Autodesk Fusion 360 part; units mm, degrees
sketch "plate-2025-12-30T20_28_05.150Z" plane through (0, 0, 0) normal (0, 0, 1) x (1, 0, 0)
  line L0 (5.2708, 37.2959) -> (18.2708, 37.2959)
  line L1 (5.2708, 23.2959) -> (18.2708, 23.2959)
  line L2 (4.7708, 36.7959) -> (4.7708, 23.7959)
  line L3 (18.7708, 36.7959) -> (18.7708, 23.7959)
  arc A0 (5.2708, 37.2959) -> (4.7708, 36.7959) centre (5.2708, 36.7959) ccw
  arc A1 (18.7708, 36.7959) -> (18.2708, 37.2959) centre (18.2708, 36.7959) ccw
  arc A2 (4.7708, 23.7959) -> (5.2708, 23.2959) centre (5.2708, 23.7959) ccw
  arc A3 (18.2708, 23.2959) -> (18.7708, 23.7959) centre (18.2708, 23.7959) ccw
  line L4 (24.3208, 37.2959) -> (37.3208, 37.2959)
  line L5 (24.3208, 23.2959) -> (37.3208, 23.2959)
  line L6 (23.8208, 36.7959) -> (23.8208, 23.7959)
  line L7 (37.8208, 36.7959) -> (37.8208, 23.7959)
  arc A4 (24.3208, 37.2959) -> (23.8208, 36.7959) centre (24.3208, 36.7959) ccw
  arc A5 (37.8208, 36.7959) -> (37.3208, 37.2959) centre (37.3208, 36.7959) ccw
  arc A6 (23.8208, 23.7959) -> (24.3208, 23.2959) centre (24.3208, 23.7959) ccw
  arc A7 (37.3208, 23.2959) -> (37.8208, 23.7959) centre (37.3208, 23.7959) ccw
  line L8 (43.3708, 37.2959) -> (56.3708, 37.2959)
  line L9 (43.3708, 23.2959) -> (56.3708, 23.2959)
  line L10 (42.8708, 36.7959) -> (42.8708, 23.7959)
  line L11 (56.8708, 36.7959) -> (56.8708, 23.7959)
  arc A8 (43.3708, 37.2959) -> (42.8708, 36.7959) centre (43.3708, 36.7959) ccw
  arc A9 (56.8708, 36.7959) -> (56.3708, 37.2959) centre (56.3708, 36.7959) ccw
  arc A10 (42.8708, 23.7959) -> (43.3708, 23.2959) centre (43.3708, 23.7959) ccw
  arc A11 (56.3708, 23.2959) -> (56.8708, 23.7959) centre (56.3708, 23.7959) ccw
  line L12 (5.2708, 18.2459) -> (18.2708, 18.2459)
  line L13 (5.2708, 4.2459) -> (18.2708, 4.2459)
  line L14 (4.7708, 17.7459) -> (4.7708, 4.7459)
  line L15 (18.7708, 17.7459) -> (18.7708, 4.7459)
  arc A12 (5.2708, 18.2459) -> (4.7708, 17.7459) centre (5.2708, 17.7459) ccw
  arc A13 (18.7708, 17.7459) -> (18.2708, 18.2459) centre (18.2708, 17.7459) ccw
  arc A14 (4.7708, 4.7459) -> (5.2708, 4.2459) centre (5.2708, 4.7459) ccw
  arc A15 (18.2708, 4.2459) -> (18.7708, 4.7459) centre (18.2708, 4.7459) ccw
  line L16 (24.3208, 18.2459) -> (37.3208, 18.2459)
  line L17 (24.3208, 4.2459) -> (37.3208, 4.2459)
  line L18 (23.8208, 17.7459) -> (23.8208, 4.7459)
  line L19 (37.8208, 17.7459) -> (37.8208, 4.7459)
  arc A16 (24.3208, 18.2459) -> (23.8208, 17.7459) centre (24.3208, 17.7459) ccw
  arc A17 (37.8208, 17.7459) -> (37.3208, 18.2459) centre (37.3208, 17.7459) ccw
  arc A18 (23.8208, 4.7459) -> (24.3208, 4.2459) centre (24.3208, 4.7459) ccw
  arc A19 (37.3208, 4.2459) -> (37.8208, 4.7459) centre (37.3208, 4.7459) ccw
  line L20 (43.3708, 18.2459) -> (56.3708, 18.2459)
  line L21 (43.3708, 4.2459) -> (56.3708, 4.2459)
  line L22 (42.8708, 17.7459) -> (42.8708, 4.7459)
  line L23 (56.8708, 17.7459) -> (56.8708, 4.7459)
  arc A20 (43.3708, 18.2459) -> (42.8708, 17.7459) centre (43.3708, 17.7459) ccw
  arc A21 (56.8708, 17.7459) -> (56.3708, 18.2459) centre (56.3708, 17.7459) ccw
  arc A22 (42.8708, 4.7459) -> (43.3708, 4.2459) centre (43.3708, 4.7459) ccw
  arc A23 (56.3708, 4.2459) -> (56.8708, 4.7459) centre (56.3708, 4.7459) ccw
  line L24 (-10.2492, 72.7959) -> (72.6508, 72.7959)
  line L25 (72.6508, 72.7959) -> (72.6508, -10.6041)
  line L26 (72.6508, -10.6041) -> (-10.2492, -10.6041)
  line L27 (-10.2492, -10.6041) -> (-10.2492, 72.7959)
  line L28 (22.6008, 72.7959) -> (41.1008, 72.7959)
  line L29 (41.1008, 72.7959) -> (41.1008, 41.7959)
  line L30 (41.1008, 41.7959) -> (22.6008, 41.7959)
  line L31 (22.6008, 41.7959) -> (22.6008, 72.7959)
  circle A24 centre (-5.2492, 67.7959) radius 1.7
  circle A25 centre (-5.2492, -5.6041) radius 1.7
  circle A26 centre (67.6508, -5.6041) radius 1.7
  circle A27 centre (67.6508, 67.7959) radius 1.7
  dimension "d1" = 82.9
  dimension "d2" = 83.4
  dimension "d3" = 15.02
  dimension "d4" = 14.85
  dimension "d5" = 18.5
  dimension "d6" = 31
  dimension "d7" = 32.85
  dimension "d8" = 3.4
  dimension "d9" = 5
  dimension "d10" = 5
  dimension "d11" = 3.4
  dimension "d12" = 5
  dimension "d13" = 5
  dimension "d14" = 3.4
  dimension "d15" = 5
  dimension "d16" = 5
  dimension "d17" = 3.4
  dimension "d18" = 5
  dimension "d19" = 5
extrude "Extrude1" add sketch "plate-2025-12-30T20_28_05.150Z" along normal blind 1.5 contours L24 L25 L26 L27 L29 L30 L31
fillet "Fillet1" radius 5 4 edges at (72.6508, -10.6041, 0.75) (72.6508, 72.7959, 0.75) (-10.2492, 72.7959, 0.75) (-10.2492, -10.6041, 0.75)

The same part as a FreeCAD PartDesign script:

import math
import FreeCAD as App
import Part
import Sketcher

V = App.Vector
Q = App.Units.Quantity


def edges_at(feature, points):
    """Names of the edges that pass closest to the given points."""
    edges = feature.Shape.Edges
    near = lambda p: min(range(len(edges)), key=lambda i: edges[i].distToShape(Part.Vertex(*p))[0])
    return sorted({f"Edge{near(p) + 1}" for p in points})

doc = App.newDocument("Part")
body = doc.addObject("PartDesign::Body", "Body")

# Sketch on XY plane
sketch1 = body.newObject("Sketcher::SketchObject", "Sketch")
sketch1.AttachmentSupport = (doc.getObject("XY_Plane"), [""])
sketch1.MapMode = "FlatFace"
sketch1.addGeometry(Part.LineSegment(V(22.6, 72.8, 0), V(-10.2, 72.8, 0)), False)
sketch1.addGeometry(Part.LineSegment(V(-10.2, 72.8, 0), V(-10.2, -10.6, 0)), False)
sketch1.addGeometry(Part.LineSegment(V(-10.2, -10.6, 0), V(72.7, -10.6, 0)), False)
sketch1.addGeometry(Part.LineSegment(V(72.7, -10.6, 0), V(72.7, 72.8, 0)), False)
sketch1.addGeometry(Part.LineSegment(V(72.7, 72.8, 0), V(41.1, 72.8, 0)), False)
sketch1.addGeometry(Part.LineSegment(V(41.1, 72.8, 0), V(41.1, 41.8, 0)), False)
sketch1.addGeometry(Part.LineSegment(V(41.1, 41.8, 0), V(22.6, 41.8, 0)), False)
sketch1.addGeometry(Part.LineSegment(V(22.6, 41.8, 0), V(22.6, 72.8, 0)), False)
sketch1.addGeometry(Part.Circle(V(-5.2, -5.6, 0), V(0, 0, 1), 1.7), False)
sketch1.addGeometry(Part.ArcOfCircle(Part.Circle(V(5.3, 17.7, 0), V(0, 0, 1), 0.5), math.radians(90), math.radians(180)), False)
sketch1.addGeometry(Part.LineSegment(V(5.3, 18.2, 0), V(18.3, 18.2, 0)), False)
sketch1.addGeometry(Part.ArcOfCircle(Part.Circle(V(18.3, 17.7, 0), V(0, 0, 1), 0.5), math.radians(0), math.radians(90)), False)
sketch1.addGeometry(Part.LineSegment(V(18.8, 17.7, 0), V(18.8, 4.7, 0)), False)
sketch1.addGeometry(Part.ArcOfCircle(Part.Circle(V(18.3, 4.7, 0), V(0, 0, 1), 0.5), math.radians(-90), math.radians(0)), False)
sketch1.addGeometry(Part.LineSegment(V(18.3, 4.2, 0), V(5.3, 4.2, 0)), False)
sketch1.addGeometry(Part.ArcOfCircle(Part.Circle(V(5.3, 4.7, 0), V(0, 0, 1), 0.5), math.radians(180), math.radians(270)), False)
sketch1.addGeometry(Part.LineSegment(V(4.8, 4.7, 0), V(4.8, 17.7, 0)), False)
sketch1.addGeometry(Part.ArcOfCircle(Part.Circle(V(24.3, 17.7, 0), V(0, 0, 1), 0.5), math.radians(90), math.radians(180)), False)
sketch1.addGeometry(Part.LineSegment(V(24.3, 18.2, 0), V(37.3, 18.2, 0)), False)
sketch1.addGeometry(Part.ArcOfCircle(Part.Circle(V(37.3, 17.7, 0), V(0, 0, 1), 0.5), math.radians(0), math.radians(90)), False)
sketch1.addGeometry(Part.LineSegment(V(37.8, 17.7, 0), V(37.8, 4.7, 0)), False)
sketch1.addGeometry(Part.ArcOfCircle(Part.Circle(V(37.3, 4.7, 0), V(0, 0, 1), 0.5), math.radians(-90), math.radians(0)), False)
sketch1.addGeometry(Part.LineSegment(V(37.3, 4.2, 0), V(24.3, 4.2, 0)), False)
sketch1.addGeometry(Part.ArcOfCircle(Part.Circle(V(24.3, 4.7, 0), V(0, 0, 1), 0.5), math.radians(180), math.radians(270)), False)
sketch1.addGeometry(Part.LineSegment(V(23.8, 4.7, 0), V(23.8, 17.7, 0)), False)
sketch1.addGeometry(Part.ArcOfCircle(Part.Circle(V(5.3, 36.8, 0), V(0, 0, 1), 0.5), math.radians(90), math.radians(180)), False)
sketch1.addGeometry(Part.LineSegment(V(5.3, 37.3, 0), V(18.3, 37.3, 0)), False)
sketch1.addGeometry(Part.ArcOfCircle(Part.Circle(V(18.3, 36.8, 0), V(0, 0, 1), 0.5), math.radians(0), math.radians(90)), False)
sketch1.addGeometry(Part.LineSegment(V(18.8, 36.8, 0), V(18.8, 23.8, 0)), False)
sketch1.addGeometry(Part.ArcOfCircle(Part.Circle(V(18.3, 23.8, 0), V(0, 0, 1), 0.5), math.radians(-90), math.radians(0)), False)
sketch1.addGeometry(Part.LineSegment(V(18.3, 23.3, 0), V(5.3, 23.3, 0)), False)
sketch1.addGeometry(Part.ArcOfCircle(Part.Circle(V(5.3, 23.8, 0), V(0, 0, 1), 0.5), math.radians(180), math.radians(270)), False)
sketch1.addGeometry(Part.LineSegment(V(4.8, 23.8, 0), V(4.8, 36.8, 0)), False)
sketch1.addGeometry(Part.ArcOfCircle(Part.Circle(V(24.3, 36.8, 0), V(0, 0, 1), 0.5), math.radians(90), math.radians(180)), False)
sketch1.addGeometry(Part.LineSegment(V(24.3, 37.3, 0), V(37.3, 37.3, 0)), False)
sketch1.addGeometry(Part.ArcOfCircle(Part.Circle(V(37.3, 36.8, 0), V(0, 0, 1), 0.5), math.radians(0), math.radians(90)), False)
sketch1.addGeometry(Part.LineSegment(V(37.8, 36.8, 0), V(37.8, 23.8, 0)), False)
sketch1.addGeometry(Part.ArcOfCircle(Part.Circle(V(37.3, 23.8, 0), V(0, 0, 1), 0.5), math.radians(-90), math.radians(0)), False)
sketch1.addGeometry(Part.LineSegment(V(37.3, 23.3, 0), V(24.3, 23.3, 0)), False)
sketch1.addGeometry(Part.ArcOfCircle(Part.Circle(V(24.3, 23.8, 0), V(0, 0, 1), 0.5), math.radians(180), math.radians(270)), False)
sketch1.addGeometry(Part.LineSegment(V(23.8, 23.8, 0), V(23.8, 36.8, 0)), False)
sketch1.addGeometry(Part.Circle(V(67.7, -5.6, 0), V(0, 0, 1), 1.7), False)
sketch1.addGeometry(Part.ArcOfCircle(Part.Circle(V(43.4, 17.7, 0), V(0, 0, 1), 0.5), math.radians(90), math.radians(180)), False)
sketch1.addGeometry(Part.LineSegment(V(43.4, 18.2, 0), V(56.4, 18.2, 0)), False)
sketch1.addGeometry(Part.ArcOfCircle(Part.Circle(V(56.4, 17.7, 0), V(0, 0, 1), 0.5), math.radians(0), math.radians(90)), False)
sketch1.addGeometry(Part.LineSegment(V(56.9, 17.7, 0), V(56.9, 4.7, 0)), False)
sketch1.addGeometry(Part.ArcOfCircle(Part.Circle(V(56.4, 4.7, 0), V(0, 0, 1), 0.5), math.radians(-90), math.radians(0)), False)
sketch1.addGeometry(Part.LineSegment(V(56.4, 4.2, 0), V(43.4, 4.2, 0)), False)
sketch1.addGeometry(Part.ArcOfCircle(Part.Circle(V(43.4, 4.7, 0), V(0, 0, 1), 0.5), math.radians(180), math.radians(270)), False)
sketch1.addGeometry(Part.LineSegment(V(42.9, 4.7, 0), V(42.9, 17.7, 0)), False)
sketch1.addGeometry(Part.ArcOfCircle(Part.Circle(V(43.4, 36.8, 0), V(0, 0, 1), 0.5), math.radians(90), math.radians(180)), False)
sketch1.addGeometry(Part.LineSegment(V(43.4, 37.3, 0), V(56.4, 37.3, 0)), False)
sketch1.addGeometry(Part.ArcOfCircle(Part.Circle(V(56.4, 36.8, 0), V(0, 0, 1), 0.5), math.radians(0), math.radians(90)), False)
sketch1.addGeometry(Part.LineSegment(V(56.9, 36.8, 0), V(56.9, 23.8, 0)), False)
sketch1.addGeometry(Part.ArcOfCircle(Part.Circle(V(56.4, 23.8, 0), V(0, 0, 1), 0.5), math.radians(-90), math.radians(0)), False)
sketch1.addGeometry(Part.LineSegment(V(56.4, 23.3, 0), V(43.4, 23.3, 0)), False)
sketch1.addGeometry(Part.ArcOfCircle(Part.Circle(V(43.4, 23.8, 0), V(0, 0, 1), 0.5), math.radians(180), math.radians(270)), False)
sketch1.addGeometry(Part.LineSegment(V(42.9, 23.8, 0), V(42.9, 36.8, 0)), False)
sketch1.addGeometry(Part.Circle(V(-5.2, 67.8, 0), V(0, 0, 1), 1.7), False)
sketch1.addGeometry(Part.Circle(V(67.7, 67.8, 0), V(0, 0, 1), 1.7), False)
sketch1.addConstraint(Sketcher.Constraint("Coincident", 0, 2, 1, 1))
sketch1.addConstraint(Sketcher.Constraint("Coincident", 1, 2, 2, 1))
sketch1.addConstraint(Sketcher.Constraint("Coincident", 2, 2, 3, 1))
sketch1.addConstraint(Sketcher.Constraint("Coincident", 3, 2, 4, 1))
sketch1.addConstraint(Sketcher.Constraint("Coincident", 4, 2, 5, 1))
sketch1.addConstraint(Sketcher.Constraint("Coincident", 5, 2, 6, 1))
sketch1.addConstraint(Sketcher.Constraint("Coincident", 6, 2, 7, 1))
sketch1.addConstraint(Sketcher.Constraint("Coincident", 7, 2, 0, 1))
sketch1.addConstraint(Sketcher.Constraint("Tangent", 9, 1, 10, 1))
sketch1.addConstraint(Sketcher.Constraint("Tangent", 10, 2, 11, 2))
sketch1.addConstraint(Sketcher.Constraint("Tangent", 11, 1, 12, 1))
sketch1.addConstraint(Sketcher.Constraint("Tangent", 12, 2, 13, 2))
sketch1.addConstraint(Sketcher.Constraint("Tangent", 13, 1, 14, 1))
sketch1.addConstraint(Sketcher.Constraint("Tangent", 14, 2, 15, 2))
sketch1.addConstraint(Sketcher.Constraint("Tangent", 15, 1, 16, 1))
sketch1.addConstraint(Sketcher.Constraint("Tangent", 16, 2, 9, 2))
sketch1.addConstraint(Sketcher.Constraint("Tangent", 17, 1, 18, 1))
sketch1.addConstraint(Sketcher.Constraint("Tangent", 18, 2, 19, 2))
sketch1.addConstraint(Sketcher.Constraint("Tangent", 19, 1, 20, 1))
sketch1.addConstraint(Sketcher.Constraint("Tangent", 20, 2, 21, 2))
sketch1.addConstraint(Sketcher.Constraint("Tangent", 21, 1, 22, 1))
sketch1.addConstraint(Sketcher.Constraint("Tangent", 22, 2, 23, 2))
sketch1.addConstraint(Sketcher.Constraint("Tangent", 23, 1, 24, 1))
sketch1.addConstraint(Sketcher.Constraint("Tangent", 24, 2, 17, 2))
sketch1.addConstraint(Sketcher.Constraint("Tangent", 25, 1, 26, 1))
sketch1.addConstraint(Sketcher.Constraint("Tangent", 26, 2, 27, 2))
sketch1.addConstraint(Sketcher.Constraint("Tangent", 27, 1, 28, 1))
sketch1.addConstraint(Sketcher.Constraint("Tangent", 28, 2, 29, 2))
sketch1.addConstraint(Sketcher.Constraint("Tangent", 29, 1, 30, 1))
sketch1.addConstraint(Sketcher.Constraint("Tangent", 30, 2, 31, 2))
sketch1.addConstraint(Sketcher.Constraint("Tangent", 31, 1, 32, 1))
sketch1.addConstraint(Sketcher.Constraint("Tangent", 32, 2, 25, 2))
sketch1.addConstraint(Sketcher.Constraint("Tangent", 33, 1, 34, 1))
sketch1.addConstraint(Sketcher.Constraint("Tangent", 34, 2, 35, 2))
sketch1.addConstraint(Sketcher.Constraint("Tangent", 35, 1, 36, 1))
sketch1.addConstraint(Sketcher.Constraint("Tangent", 36, 2, 37, 2))
sketch1.addConstraint(Sketcher.Constraint("Tangent", 37, 1, 38, 1))
sketch1.addConstraint(Sketcher.Constraint("Tangent", 38, 2, 39, 2))
sketch1.addConstraint(Sketcher.Constraint("Tangent", 39, 1, 40, 1))
sketch1.addConstraint(Sketcher.Constraint("Tangent", 40, 2, 33, 2))
sketch1.addConstraint(Sketcher.Constraint("Tangent", 42, 1, 43, 1))
sketch1.addConstraint(Sketcher.Constraint("Tangent", 43, 2, 44, 2))
sketch1.addConstraint(Sketcher.Constraint("Tangent", 44, 1, 45, 1))
sketch1.addConstraint(Sketcher.Constraint("Tangent", 45, 2, 46, 2))
sketch1.addConstraint(Sketcher.Constraint("Tangent", 46, 1, 47, 1))
sketch1.addConstraint(Sketcher.Constraint("Tangent", 47, 2, 48, 2))
sketch1.addConstraint(Sketcher.Constraint("Tangent", 48, 1, 49, 1))
sketch1.addConstraint(Sketcher.Constraint("Tangent", 49, 2, 42, 2))
sketch1.addConstraint(Sketcher.Constraint("Tangent", 50, 1, 51, 1))
sketch1.addConstraint(Sketcher.Constraint("Tangent", 51, 2, 52, 2))
sketch1.addConstraint(Sketcher.Constraint("Tangent", 52, 1, 53, 1))
sketch1.addConstraint(Sketcher.Constraint("Tangent", 53, 2, 54, 2))
sketch1.addConstraint(Sketcher.Constraint("Tangent", 54, 1, 55, 1))
sketch1.addConstraint(Sketcher.Constraint("Tangent", 55, 2, 56, 2))
sketch1.addConstraint(Sketcher.Constraint("Tangent", 56, 1, 57, 1))
sketch1.addConstraint(Sketcher.Constraint("Tangent", 57, 2, 50, 2))
sketch1.addConstraint(Sketcher.Constraint("Horizontal", 0))
sketch1.addConstraint(Sketcher.Constraint("Vertical", 1))
sketch1.addConstraint(Sketcher.Constraint("Horizontal", 2))
sketch1.addConstraint(Sketcher.Constraint("Vertical", 3))
sketch1.addConstraint(Sketcher.Constraint("Horizontal", 4))
sketch1.addConstraint(Sketcher.Constraint("Vertical", 5))
sketch1.addConstraint(Sketcher.Constraint("Horizontal", 6))
sketch1.addConstraint(Sketcher.Constraint("Vertical", 7))
sketch1.addConstraint(Sketcher.Constraint("Horizontal", 10))
sketch1.addConstraint(Sketcher.Constraint("Vertical", 12))
sketch1.addConstraint(Sketcher.Constraint("Horizontal", 14))
sketch1.addConstraint(Sketcher.Constraint("Vertical", 16))
sketch1.addConstraint(Sketcher.Constraint("Horizontal", 18))
sketch1.addConstraint(Sketcher.Constraint("Vertical", 20))
sketch1.addConstraint(Sketcher.Constraint("Horizontal", 22))
sketch1.addConstraint(Sketcher.Constraint("Vertical", 24))
sketch1.addConstraint(Sketcher.Constraint("Horizontal", 26))
sketch1.addConstraint(Sketcher.Constraint("Vertical", 28))
sketch1.addConstraint(Sketcher.Constraint("Horizontal", 30))
sketch1.addConstraint(Sketcher.Constraint("Vertical", 32))
sketch1.addConstraint(Sketcher.Constraint("Horizontal", 34))
sketch1.addConstraint(Sketcher.Constraint("Vertical", 36))
sketch1.addConstraint(Sketcher.Constraint("Horizontal", 38))
sketch1.addConstraint(Sketcher.Constraint("Vertical", 40))
sketch1.addConstraint(Sketcher.Constraint("Horizontal", 43))
sketch1.addConstraint(Sketcher.Constraint("Vertical", 45))
sketch1.addConstraint(Sketcher.Constraint("Horizontal", 47))
sketch1.addConstraint(Sketcher.Constraint("Vertical", 49))
sketch1.addConstraint(Sketcher.Constraint("Horizontal", 51))
sketch1.addConstraint(Sketcher.Constraint("Vertical", 53))
sketch1.addConstraint(Sketcher.Constraint("Horizontal", 55))
sketch1.addConstraint(Sketcher.Constraint("Vertical", 57))
sketch1.addConstraint(Sketcher.Constraint("Equal", 9, 11))
sketch1.addConstraint(Sketcher.Constraint("Equal", 11, 13))
sketch1.addConstraint(Sketcher.Constraint("Equal", 13, 15))
sketch1.addConstraint(Sketcher.Constraint("Equal", 15, 17))
sketch1.addConstraint(Sketcher.Constraint("Equal", 17, 19))
sketch1.addConstraint(Sketcher.Constraint("Equal", 19, 21))
sketch1.addConstraint(Sketcher.Constraint("Equal", 21, 23))
sketch1.addConstraint(Sketcher.Constraint("Equal", 23, 25))
sketch1.addConstraint(Sketcher.Constraint("Equal", 25, 27))
sketch1.addConstraint(Sketcher.Constraint("Equal", 27, 29))
sketch1.addConstraint(Sketcher.Constraint("Equal", 29, 31))
sketch1.addConstraint(Sketcher.Constraint("Equal", 31, 33))
sketch1.addConstraint(Sketcher.Constraint("Equal", 33, 35))
sketch1.addConstraint(Sketcher.Constraint("Equal", 35, 37))
sketch1.addConstraint(Sketcher.Constraint("Equal", 37, 39))
sketch1.addConstraint(Sketcher.Constraint("Equal", 8, 41))
sketch1.addConstraint(Sketcher.Constraint("Equal", 39, 42))
sketch1.addConstraint(Sketcher.Constraint("Equal", 42, 44))
sketch1.addConstraint(Sketcher.Constraint("Equal", 44, 46))
sketch1.addConstraint(Sketcher.Constraint("Equal", 46, 48))
sketch1.addConstraint(Sketcher.Constraint("Equal", 48, 50))
sketch1.addConstraint(Sketcher.Constraint("Equal", 50, 52))
sketch1.addConstraint(Sketcher.Constraint("Equal", 52, 54))
sketch1.addConstraint(Sketcher.Constraint("Equal", 54, 56))
sketch1.addConstraint(Sketcher.Constraint("Equal", 41, 58))
sketch1.addConstraint(Sketcher.Constraint("Equal", 58, 59))
sketch1.addConstraint(Sketcher.Constraint("Horizontal", 11, 3, 17, 3))
sketch1.addConstraint(Sketcher.Constraint("Horizontal", 15, 3, 21, 3))
sketch1.addConstraint(Sketcher.Constraint("Horizontal", 27, 3, 33, 3))
sketch1.addConstraint(Sketcher.Constraint("Horizontal", 31, 3, 37, 3))
sketch1.addConstraint(Sketcher.Constraint("Horizontal", 8, 3, 41, 3))
sketch1.addConstraint(Sketcher.Constraint("Horizontal", 19, 3, 42, 3))
sketch1.addConstraint(Sketcher.Constraint("Horizontal", 23, 3, 46, 3))
sketch1.addConstraint(Sketcher.Constraint("Horizontal", 35, 3, 50, 3))
sketch1.addConstraint(Sketcher.Constraint("Horizontal", 39, 3, 54, 3))
sketch1.addConstraint(Sketcher.Constraint("Horizontal", 58, 3, 59, 3))
sketch1.addConstraint(Sketcher.Constraint("Horizontal", 0, 2, 3, 2))
sketch1.addConstraint(Sketcher.Constraint("Vertical", 15, 3, 25, 3))
sketch1.addConstraint(Sketcher.Constraint("Vertical", 13, 3, 27, 3))
sketch1.addConstraint(Sketcher.Constraint("Vertical", 23, 3, 33, 3))
sketch1.addConstraint(Sketcher.Constraint("Vertical", 21, 3, 35, 3))
sketch1.addConstraint(Sketcher.Constraint("Vertical", 48, 3, 50, 3))
sketch1.addConstraint(Sketcher.Constraint("Vertical", 46, 3, 52, 3))
sketch1.addConstraint(Sketcher.Constraint("Vertical", 8, 3, 58, 3))
sketch1.addConstraint(Sketcher.Constraint("Vertical", 41, 3, 59, 3))
sketch1.addConstraint(Sketcher.Constraint("Equal", 14, 18))
sketch1.addConstraint(Sketcher.Constraint("Equal", 38, 43))
sketch1.addConstraint(Sketcher.Constraint("Equal", 55, 12))
sketch1.addConstraint(Sketcher.Constraint("Equal", 24, 28))
sketch1.addConstraint(Sketcher.Constraint("Diameter", 8, Q("3.4 mm")))
sketch1.addConstraint(Sketcher.Constraint("DistanceY", 5, 2, 5, 1, Q("31 mm")))
sketch1.addConstraint(Sketcher.Constraint("DistanceX", 2, 1, 2, 2, Q("82.9 mm")))
sketch1.addConstraint(Sketcher.Constraint("DistanceX", 6, 2, 6, 1, Q("18.5 mm")))
sketch1.addConstraint(Sketcher.Constraint("DistanceY", 1, 2, 1, 1, Q("83.4 mm")))
sketch1.addConstraint(Sketcher.Constraint("DistanceX", 0, 2, 0, 1, Q("32.85 mm")))
sketch1.addConstraint(Sketcher.Constraint("Radius", 9, Q("0.5 mm")))
sketch1.addConstraint(Sketcher.Constraint("DistanceX", 10, 1, 10, 2, Q("13 mm")))
sketch1.addConstraint(Sketcher.Constraint("DistanceY", 8, 3, -1, 1, Q("5.604 mm")))
sketch1.addConstraint(Sketcher.Constraint("DistanceY", -1, 1, 9, 3, Q("17.746 mm")))
sketch1.addConstraint(Sketcher.Constraint("DistanceY", -1, 1, 25, 3, Q("36.796 mm")))
sketch1.addConstraint(Sketcher.Constraint("DistanceY", -1, 1, 58, 3, Q("67.796 mm")))
sketch1.addConstraint(Sketcher.Constraint("DistanceY", -1, 1, 0, 2, Q("72.796 mm")))
sketch1.addConstraint(Sketcher.Constraint("DistanceX", 8, 3, -1, 1, Q("5.2492 mm")))
sketch1.addConstraint(Sketcher.Constraint("DistanceX", -1, 1, 9, 3, Q("5.2708 mm")))
sketch1.addConstraint(Sketcher.Constraint("DistanceX", -1, 1, 17, 3, Q("24.3208 mm")))
sketch1.addConstraint(Sketcher.Constraint("DistanceX", -1, 1, 41, 3, Q("67.6508 mm")))
sketch1.addConstraint(Sketcher.Constraint("DistanceX", -1, 1, 42, 3, Q("43.3708 mm")))
sketch1.addConstraint(Sketcher.Constraint("DistanceX", 0, 2, -1, 1, Q("10.2492 mm")))
pad1 = body.newObject("PartDesign::Pad", "Pad")
pad1.Profile = sketch1
pad1.Length = 1.5
doc.recompute()

fillet = body.newObject("PartDesign::Fillet", "Fillet")
fillet.Base = (pad1, edges_at(pad1, [
    (72.651, -10.604, 0.75),
    (72.651, 72.796, 0.75),
    (-10.249, 72.796, 0.75),
    (-10.249, -10.604, 0.75),
]))
fillet.Radius = 5

doc.recompute()
